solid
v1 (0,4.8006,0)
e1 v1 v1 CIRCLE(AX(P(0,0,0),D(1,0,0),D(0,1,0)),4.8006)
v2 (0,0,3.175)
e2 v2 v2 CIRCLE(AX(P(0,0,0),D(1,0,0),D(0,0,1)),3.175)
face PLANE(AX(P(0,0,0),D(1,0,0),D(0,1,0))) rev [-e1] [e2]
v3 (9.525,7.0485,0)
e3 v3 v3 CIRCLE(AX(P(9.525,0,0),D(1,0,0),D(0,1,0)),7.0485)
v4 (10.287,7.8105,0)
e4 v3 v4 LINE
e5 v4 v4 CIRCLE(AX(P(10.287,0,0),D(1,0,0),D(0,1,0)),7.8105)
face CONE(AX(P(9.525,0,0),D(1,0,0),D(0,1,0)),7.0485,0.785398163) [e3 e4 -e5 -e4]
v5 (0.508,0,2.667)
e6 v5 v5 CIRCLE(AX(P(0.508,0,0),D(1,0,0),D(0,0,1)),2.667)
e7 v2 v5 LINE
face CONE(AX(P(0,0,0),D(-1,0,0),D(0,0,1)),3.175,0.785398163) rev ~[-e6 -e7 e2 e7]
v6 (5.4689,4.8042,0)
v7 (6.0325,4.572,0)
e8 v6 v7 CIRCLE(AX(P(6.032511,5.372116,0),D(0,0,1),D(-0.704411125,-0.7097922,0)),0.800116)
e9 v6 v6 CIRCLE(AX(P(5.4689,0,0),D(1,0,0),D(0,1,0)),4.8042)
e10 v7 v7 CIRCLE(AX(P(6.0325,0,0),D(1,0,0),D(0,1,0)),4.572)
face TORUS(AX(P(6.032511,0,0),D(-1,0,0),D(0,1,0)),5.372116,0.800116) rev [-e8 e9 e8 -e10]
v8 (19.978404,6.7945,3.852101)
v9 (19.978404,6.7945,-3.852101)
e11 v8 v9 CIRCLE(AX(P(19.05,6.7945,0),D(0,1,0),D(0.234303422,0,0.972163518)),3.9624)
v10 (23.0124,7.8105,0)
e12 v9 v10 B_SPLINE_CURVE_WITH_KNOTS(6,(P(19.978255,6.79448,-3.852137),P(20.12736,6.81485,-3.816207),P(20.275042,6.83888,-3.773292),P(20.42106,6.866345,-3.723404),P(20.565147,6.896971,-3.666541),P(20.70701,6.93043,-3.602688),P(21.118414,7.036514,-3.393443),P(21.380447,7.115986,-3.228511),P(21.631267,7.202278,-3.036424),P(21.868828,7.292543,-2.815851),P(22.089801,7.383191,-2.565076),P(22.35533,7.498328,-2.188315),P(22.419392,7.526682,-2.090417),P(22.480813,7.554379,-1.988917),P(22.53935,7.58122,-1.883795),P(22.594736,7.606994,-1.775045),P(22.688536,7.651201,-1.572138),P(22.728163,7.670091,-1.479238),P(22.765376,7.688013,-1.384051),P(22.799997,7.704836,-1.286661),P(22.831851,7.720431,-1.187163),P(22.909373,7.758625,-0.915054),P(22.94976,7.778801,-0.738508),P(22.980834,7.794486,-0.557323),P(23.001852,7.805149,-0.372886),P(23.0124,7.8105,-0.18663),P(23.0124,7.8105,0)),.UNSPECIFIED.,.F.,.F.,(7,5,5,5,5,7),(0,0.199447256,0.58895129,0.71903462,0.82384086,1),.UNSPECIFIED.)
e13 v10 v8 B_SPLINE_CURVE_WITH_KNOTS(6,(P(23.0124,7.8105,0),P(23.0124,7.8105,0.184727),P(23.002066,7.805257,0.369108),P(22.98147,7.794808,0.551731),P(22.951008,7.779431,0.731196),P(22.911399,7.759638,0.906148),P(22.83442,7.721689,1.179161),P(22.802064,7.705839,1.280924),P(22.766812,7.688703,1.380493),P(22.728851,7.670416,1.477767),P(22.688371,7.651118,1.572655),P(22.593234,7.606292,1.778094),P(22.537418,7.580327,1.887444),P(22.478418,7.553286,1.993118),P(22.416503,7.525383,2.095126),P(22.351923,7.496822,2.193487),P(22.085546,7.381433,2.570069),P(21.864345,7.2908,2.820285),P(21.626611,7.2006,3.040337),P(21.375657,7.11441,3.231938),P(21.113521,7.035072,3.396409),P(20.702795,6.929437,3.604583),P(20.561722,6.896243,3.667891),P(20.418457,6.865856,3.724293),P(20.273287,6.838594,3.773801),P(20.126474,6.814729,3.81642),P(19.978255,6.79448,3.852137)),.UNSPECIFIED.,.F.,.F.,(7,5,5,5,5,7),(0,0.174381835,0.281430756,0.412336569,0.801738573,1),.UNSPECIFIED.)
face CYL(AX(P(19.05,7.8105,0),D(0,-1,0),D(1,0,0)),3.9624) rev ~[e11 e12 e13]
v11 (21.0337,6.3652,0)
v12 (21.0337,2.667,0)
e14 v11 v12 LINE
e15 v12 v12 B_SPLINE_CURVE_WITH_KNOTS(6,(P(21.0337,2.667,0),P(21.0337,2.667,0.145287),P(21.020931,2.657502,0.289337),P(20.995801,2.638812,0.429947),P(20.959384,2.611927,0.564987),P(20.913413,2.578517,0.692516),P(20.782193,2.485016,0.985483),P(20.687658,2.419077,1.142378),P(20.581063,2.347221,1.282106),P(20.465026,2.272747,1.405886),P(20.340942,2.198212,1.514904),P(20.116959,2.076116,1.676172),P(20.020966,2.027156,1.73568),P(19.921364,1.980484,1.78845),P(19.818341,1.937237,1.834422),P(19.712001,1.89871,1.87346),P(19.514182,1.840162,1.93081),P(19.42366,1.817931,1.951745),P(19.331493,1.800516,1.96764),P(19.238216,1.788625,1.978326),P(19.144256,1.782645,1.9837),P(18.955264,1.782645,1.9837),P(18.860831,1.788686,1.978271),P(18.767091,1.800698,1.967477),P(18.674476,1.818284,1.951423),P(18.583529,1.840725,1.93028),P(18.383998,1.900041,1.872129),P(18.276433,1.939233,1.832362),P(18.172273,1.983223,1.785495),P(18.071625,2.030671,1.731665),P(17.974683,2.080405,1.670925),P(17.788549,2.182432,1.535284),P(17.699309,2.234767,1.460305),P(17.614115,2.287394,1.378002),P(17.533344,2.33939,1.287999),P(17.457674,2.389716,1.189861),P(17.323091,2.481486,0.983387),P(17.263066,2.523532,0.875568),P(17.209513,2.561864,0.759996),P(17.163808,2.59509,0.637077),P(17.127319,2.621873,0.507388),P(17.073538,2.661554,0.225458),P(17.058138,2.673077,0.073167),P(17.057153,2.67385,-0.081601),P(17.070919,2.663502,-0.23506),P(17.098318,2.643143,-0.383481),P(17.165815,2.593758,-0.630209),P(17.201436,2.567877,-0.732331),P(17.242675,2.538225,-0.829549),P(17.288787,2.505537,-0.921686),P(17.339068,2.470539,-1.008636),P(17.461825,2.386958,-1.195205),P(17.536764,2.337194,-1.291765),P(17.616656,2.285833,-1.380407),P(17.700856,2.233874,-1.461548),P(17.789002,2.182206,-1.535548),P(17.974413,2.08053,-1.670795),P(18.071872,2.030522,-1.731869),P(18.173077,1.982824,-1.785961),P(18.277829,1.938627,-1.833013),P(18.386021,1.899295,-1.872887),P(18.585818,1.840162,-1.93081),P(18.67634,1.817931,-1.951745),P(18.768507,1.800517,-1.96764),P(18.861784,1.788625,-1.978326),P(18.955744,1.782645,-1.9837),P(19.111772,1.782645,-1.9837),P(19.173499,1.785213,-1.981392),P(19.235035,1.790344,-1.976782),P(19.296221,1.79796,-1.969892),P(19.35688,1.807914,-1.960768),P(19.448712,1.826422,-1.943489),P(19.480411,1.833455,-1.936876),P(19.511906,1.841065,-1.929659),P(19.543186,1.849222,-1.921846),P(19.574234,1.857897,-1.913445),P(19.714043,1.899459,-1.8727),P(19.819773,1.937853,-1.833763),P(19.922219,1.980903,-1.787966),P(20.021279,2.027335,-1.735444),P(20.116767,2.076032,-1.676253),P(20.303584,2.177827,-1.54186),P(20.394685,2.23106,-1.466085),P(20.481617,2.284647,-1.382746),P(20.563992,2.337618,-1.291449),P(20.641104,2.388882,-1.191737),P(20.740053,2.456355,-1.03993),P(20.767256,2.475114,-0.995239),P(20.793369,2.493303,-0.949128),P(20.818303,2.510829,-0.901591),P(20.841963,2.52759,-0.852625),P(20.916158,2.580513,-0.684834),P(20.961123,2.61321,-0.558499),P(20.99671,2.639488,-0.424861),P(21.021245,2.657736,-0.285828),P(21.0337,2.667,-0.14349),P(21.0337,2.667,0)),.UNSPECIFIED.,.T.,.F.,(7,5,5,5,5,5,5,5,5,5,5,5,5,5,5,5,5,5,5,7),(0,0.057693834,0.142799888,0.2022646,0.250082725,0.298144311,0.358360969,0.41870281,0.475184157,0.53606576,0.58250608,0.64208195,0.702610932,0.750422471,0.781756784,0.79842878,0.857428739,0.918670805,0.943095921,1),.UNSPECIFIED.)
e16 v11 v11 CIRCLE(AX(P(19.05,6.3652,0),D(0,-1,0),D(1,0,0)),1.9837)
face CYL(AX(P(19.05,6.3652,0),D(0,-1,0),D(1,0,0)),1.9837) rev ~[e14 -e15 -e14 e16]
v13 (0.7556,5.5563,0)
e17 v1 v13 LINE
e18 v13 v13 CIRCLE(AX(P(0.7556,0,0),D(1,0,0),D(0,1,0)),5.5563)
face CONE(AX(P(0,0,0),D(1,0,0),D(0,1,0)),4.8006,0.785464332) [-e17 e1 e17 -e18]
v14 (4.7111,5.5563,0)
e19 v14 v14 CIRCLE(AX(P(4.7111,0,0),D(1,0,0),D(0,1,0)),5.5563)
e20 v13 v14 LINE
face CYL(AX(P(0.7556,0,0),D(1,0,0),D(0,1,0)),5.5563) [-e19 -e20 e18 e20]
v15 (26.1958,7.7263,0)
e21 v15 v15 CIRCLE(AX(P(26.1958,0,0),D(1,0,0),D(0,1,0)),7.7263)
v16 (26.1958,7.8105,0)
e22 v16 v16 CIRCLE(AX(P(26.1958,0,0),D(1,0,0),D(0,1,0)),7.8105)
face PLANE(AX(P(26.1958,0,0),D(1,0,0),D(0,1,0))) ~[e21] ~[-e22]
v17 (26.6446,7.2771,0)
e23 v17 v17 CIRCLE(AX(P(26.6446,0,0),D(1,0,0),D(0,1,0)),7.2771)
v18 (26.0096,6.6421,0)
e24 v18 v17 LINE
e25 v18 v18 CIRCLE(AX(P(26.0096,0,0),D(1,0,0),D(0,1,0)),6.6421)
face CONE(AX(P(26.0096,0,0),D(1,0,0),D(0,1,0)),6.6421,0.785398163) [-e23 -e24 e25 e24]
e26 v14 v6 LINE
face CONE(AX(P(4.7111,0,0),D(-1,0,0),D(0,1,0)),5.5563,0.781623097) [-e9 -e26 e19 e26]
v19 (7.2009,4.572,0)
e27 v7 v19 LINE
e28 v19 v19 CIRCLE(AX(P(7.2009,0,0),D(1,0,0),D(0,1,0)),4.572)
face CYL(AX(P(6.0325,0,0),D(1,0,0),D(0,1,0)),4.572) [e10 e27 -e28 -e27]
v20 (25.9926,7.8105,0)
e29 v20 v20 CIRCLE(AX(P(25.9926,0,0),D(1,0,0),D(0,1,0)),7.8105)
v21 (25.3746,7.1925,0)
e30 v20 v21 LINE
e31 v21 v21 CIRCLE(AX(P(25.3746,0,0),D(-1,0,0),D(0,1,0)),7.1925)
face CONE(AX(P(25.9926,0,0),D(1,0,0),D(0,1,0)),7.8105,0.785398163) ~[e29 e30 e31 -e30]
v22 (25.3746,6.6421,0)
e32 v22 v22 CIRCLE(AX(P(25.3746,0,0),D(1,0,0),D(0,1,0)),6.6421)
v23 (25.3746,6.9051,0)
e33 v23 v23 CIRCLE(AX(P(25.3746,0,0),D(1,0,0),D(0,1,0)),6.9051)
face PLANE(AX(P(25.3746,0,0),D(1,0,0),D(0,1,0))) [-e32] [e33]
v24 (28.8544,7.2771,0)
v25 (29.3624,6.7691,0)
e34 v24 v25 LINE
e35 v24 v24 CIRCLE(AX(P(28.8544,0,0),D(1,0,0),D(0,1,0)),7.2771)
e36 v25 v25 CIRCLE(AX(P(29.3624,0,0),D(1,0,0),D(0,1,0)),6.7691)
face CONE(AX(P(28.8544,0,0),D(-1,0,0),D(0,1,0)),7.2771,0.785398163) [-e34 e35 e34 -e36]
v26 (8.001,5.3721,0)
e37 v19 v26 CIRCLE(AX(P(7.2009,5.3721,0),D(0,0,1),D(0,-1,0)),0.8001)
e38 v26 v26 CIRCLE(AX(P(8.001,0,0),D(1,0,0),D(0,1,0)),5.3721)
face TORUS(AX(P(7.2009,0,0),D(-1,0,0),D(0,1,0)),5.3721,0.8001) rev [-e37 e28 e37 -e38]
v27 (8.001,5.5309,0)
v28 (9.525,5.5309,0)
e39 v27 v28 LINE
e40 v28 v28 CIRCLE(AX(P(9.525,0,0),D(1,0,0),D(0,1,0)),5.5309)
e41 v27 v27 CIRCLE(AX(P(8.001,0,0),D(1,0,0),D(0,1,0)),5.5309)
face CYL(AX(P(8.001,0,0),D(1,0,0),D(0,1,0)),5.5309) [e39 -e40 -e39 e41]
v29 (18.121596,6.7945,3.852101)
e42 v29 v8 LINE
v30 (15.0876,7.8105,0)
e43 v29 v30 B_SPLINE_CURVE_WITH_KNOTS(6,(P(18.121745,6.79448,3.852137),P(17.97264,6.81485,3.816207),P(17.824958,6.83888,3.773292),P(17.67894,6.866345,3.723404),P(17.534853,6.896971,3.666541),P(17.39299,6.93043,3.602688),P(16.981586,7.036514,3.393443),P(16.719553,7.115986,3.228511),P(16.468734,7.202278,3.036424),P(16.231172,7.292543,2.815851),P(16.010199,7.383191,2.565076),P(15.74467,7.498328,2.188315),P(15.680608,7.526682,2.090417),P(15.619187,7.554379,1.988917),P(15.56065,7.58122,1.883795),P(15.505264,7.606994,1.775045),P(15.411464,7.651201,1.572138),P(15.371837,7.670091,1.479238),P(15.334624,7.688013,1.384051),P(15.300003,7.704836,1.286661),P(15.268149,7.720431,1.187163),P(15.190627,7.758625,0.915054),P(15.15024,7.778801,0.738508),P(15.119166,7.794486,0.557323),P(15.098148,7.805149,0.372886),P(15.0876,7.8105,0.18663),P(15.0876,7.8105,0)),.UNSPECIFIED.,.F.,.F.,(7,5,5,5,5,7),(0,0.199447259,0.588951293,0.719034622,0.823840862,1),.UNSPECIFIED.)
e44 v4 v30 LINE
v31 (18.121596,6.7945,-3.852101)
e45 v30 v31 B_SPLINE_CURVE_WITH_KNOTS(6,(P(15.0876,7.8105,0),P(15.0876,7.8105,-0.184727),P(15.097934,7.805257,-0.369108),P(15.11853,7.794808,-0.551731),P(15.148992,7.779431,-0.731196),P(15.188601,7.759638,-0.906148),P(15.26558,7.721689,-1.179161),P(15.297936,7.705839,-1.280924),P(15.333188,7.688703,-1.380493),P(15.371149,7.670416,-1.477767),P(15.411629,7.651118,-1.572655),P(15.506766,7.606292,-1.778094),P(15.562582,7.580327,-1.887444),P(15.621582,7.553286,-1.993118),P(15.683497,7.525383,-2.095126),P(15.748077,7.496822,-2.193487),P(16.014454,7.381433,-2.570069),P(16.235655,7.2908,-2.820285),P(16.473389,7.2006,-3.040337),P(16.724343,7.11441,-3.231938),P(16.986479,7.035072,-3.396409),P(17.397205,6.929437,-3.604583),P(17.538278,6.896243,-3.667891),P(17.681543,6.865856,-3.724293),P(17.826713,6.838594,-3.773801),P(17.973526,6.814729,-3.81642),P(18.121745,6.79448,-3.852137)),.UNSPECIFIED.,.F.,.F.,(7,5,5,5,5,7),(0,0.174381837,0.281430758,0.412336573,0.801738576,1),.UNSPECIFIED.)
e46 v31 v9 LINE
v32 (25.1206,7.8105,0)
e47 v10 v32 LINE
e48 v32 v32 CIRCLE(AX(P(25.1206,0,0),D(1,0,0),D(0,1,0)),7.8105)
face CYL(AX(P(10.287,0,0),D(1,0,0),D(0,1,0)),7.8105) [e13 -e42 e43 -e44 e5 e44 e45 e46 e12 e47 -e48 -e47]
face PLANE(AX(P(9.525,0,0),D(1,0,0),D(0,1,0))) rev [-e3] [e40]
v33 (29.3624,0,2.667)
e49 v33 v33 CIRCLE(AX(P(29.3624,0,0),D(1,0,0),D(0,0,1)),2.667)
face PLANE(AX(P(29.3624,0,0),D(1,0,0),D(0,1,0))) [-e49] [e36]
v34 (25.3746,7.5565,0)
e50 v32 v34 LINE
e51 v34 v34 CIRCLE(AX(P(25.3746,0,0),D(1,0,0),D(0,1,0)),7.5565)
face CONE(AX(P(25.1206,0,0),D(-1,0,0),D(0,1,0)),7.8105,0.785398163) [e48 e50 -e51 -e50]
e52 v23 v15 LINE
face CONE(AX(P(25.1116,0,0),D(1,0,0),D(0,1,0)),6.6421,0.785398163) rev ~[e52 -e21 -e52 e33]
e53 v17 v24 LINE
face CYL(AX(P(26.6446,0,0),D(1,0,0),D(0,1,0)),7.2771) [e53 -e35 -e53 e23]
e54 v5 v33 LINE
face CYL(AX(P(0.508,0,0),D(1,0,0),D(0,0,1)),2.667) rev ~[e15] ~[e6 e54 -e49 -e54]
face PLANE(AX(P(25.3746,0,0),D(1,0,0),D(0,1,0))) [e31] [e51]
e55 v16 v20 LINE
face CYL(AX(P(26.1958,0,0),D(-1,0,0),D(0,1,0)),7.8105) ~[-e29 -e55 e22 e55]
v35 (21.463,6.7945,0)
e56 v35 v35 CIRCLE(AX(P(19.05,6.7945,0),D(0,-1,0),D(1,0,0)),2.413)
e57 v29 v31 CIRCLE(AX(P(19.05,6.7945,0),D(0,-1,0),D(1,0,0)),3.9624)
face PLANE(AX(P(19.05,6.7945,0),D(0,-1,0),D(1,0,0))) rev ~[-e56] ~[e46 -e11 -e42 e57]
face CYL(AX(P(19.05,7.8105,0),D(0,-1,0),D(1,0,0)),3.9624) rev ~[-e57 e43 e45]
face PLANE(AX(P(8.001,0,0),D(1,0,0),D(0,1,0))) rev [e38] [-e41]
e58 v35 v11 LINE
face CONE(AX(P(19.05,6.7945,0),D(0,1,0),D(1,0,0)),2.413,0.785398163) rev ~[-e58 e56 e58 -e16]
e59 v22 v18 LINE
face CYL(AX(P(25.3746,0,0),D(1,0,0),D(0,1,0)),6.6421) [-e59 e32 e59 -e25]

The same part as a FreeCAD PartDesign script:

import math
import FreeCAD as App
import Part
import Sketcher
from FreeCAD import Vector
Q = App.Units.Quantity


def add_polygon(sketch, points):
    """Adds a closed chain of lines whose ends are joined by coincident constraints."""
    first, n = sketch.GeometryCount, len(points)
    for a, b in zip(points, points[1:] + points[:1]):
        sketch.addGeometry(Part.LineSegment(App.Vector(*a, 0), App.Vector(*b, 0)), False)
    for i in range(n):
        sketch.addConstraint(Sketcher.Constraint("Coincident", first + i, 2, first + (i + 1) % n, 1))

doc = App.newDocument("Part")
body = doc.addObject("PartDesign::Body", "Body")

# Sketch on XY plane
sketch1 = body.newObject("Sketcher::SketchObject", "Sketch")
sketch1.AttachmentSupport = (doc.getObject("XY_Plane"), [""])
sketch1.MapMode = "FlatFace"
sketch1.addGeometry(Part.LineSegment(Vector(0, 0, 0), Vector(9.53, 0, 0)), False)
sketch1.addGeometry(Part.LineSegment(Vector(9.53, 0, 0), Vector(9.53, 5.53, 0)), False)
sketch1.addGeometry(Part.LineSegment(Vector(9.53, 5.53, 0), Vector(8, 5.53, 0)), False)
sketch1.addGeometry(Part.LineSegment(Vector(8, 5.53, 0), Vector(8, 5.37, 0)), False)
sketch1.addGeometry(Part.ArcOfCircle(Part.Circle(Vector(7.2, 5.37, 0), Vector(0, 0, 1), 0.8), math.radians(-90), math.radians(0)), False)
sketch1.addGeometry(Part.LineSegment(Vector(7.2, 4.57, 0), Vector(6.03, 4.57, 0)), False)
sketch1.addGeometry(Part.ArcOfCircle(Part.Circle(Vector(6.03, 5.37, 0), Vector(0, 0, 1), 0.8), math.radians(-135), math.radians(-90)), False)
sketch1.addGeometry(Part.LineSegment(Vector(5.47, 4.8, 0), Vector(4.71, 5.56, 0)), False)
sketch1.addGeometry(Part.LineSegment(Vector(4.71, 5.56, 0), Vector(0.76, 5.56, 0)), False)
sketch1.addGeometry(Part.LineSegment(Vector(0.76, 5.56, 0), Vector(0, 4.8, 0)), False)
sketch1.addGeometry(Part.LineSegment(Vector(0, 4.8, 0), Vector(0, 0, 0)), False)
sketch1.addConstraint(Sketcher.Constraint("Coincident", 0, 2, 1, 1))
sketch1.addConstraint(Sketcher.Constraint("Coincident", 1, 2, 2, 1))
sketch1.addConstraint(Sketcher.Constraint("Coincident", 2, 2, 3, 1))
sketch1.addConstraint(Sketcher.Constraint("Tangent", 3, 2, 4, 2))
sketch1.addConstraint(Sketcher.Constraint("Tangent", 4, 1, 5, 1))
sketch1.addConstraint(Sketcher.Constraint("Tangent", 5, 2, 6, 2))
sketch1.addConstraint(Sketcher.Constraint("Tangent", 6, 1, 7, 1))
sketch1.addConstraint(Sketcher.Constraint("Coincident", 7, 2, 8, 1))
sketch1.addConstraint(Sketcher.Constraint("Coincident", 8, 2, 9, 1))
sketch1.addConstraint(Sketcher.Constraint("Coincident", 9, 2, 10, 1))
sketch1.addConstraint(Sketcher.Constraint("Coincident", 10, 2, 0, 1))
sketch1.addConstraint(Sketcher.Constraint("Horizontal", 0))
sketch1.addConstraint(Sketcher.Constraint("Vertical", 1))
sketch1.addConstraint(Sketcher.Constraint("Horizontal", 2))
sketch1.addConstraint(Sketcher.Constraint("Vertical", 3))
sketch1.addConstraint(Sketcher.Constraint("Horizontal", 5))
sketch1.addConstraint(Sketcher.Constraint("Horizontal", 8))
sketch1.addConstraint(Sketcher.Constraint("Vertical", 10))
sketch1.addConstraint(Sketcher.Constraint("Coincident", 10, 2, -1, 1))
sketch1.addConstraint(Sketcher.Constraint("Equal", 4, 6))
sketch1.addConstraint(Sketcher.Constraint("DistanceX", 2, 2, 2, 1, Q("0.06 in")))
sketch1.addConstraint(Sketcher.Constraint("Radius", 4, Q("0.0315 in")))
sketch1.addConstraint(Sketcher.Constraint("DistanceX", 0, 1, 0, 2, Q("0.375 in")))
sketch1.addConstraint(Sketcher.Constraint("DistanceX", 5, 2, 5, 1, Q("0.046 in")))
sketch1.addConstraint(Sketcher.Constraint("DistanceY", 10, 2, 10, 1, Q("0.189 in")))
sketch1.addConstraint(Sketcher.Constraint("DistanceY", -1, 1, 4, 1, Q("0.18 in")))
sketch1.addConstraint(Sketcher.Constraint("DistanceY", -1, 1, 7, 2, Q("0.218752 in")))
sketch1.addConstraint(Sketcher.Constraint("DistanceX", 8, 2, 8, 1, 3.9555))
sketch1.addConstraint(Sketcher.Constraint("DistanceY", 1, 1, 1, 2, 5.531))
sketch1.addConstraint(Sketcher.Constraint("DistanceX", -1, 1, 6, 1, Q("0.2153 in")))
revolution = body.newObject("PartDesign::Revolution", "Revolution")
revolution.Profile = sketch1
revolution.ReferenceAxis = (sketch1, ["H_Axis"])
revolution.Angle = 360

# Sketch on XY plane
sketch2 = body.newObject("Sketcher::SketchObject", "Sketch001")
sketch2.AttachmentSupport = (doc.getObject("XY_Plane"), [""])
sketch2.MapMode = "FlatFace"
add_polygon(sketch2, [(9.53, 0), (29.36, 0), (29.36, 6.77), (28.85, 7.28), (26.64, 7.28), (26.01, 6.64), (25.37, 6.64), (25.37, 7.56), (25.12, 7.81), (10.29, 7.81), (9.53, 7.05)])  # lines 0-10
sketch2.addConstraint(Sketcher.Constraint("Horizontal", 0))
sketch2.addConstraint(Sketcher.Constraint("Vertical", 1))
sketch2.addConstraint(Sketcher.Constraint("Horizontal", 3))
sketch2.addConstraint(Sketcher.Constraint("Horizontal", 5))
sketch2.addConstraint(Sketcher.Constraint("Vertical", 6))
sketch2.addConstraint(Sketcher.Constraint("Horizontal", 8))
sketch2.addConstraint(Sketcher.Constraint("Vertical", 10))
sketch2.addConstraint(Sketcher.Constraint("PointOnObject", 0, 2, -1))
sketch2.addConstraint(Sketcher.Constraint("Perpendicular", 2, 4))
sketch2.addConstraint(Sketcher.Constraint("Perpendicular", 4, 7))
sketch2.addConstraint(Sketcher.Constraint("Perpendicular", 7, 9))
sketch2.addConstraint(Sketcher.Constraint("Angle", 2, Q("135 deg")))
sketch2.addConstraint(Sketcher.Constraint("DistanceX", 0, 1, 0, 2, Q("0.781 in")))
sketch2.addConstraint(Sketcher.Constraint("DistanceX", 3, 2, 3, 1, Q("0.087 in")))
sketch2.addConstraint(Sketcher.Constraint("DistanceX", 5, 2, 5, 1, Q("0.025 in")))
sketch2.addConstraint(Sketcher.Constraint("DistanceX", 8, 2, 8, 1, Q("0.584 in")))
sketch2.addConstraint(Sketcher.Constraint("DistanceY", 6, 1, 6, 2, Q("0.036 in")))
sketch2.addConstraint(Sketcher.Constraint("DistanceX", 2, 2, 1, 2, Q("0.02 in")))
sketch2.addConstraint(Sketcher.Constraint("DistanceX", 5, 2, 3, 2, Q("0.05 in")))
sketch2.addConstraint(Sketcher.Constraint("DistanceX", 7, 2, 6, 2, Q("0.01 in")))
sketch2.addConstraint(Sketcher.Constraint("DistanceY", 1, 1, 1, 2, Q("0.2665 in")))
sketch2.addConstraint(Sketcher.Constraint("DistanceX", -1, 1, 0, 2, Q("1.156 in")))
revolution2 = body.newObject("PartDesign::Revolution", "Revolution001")
revolution2.Profile = sketch2
revolution2.ReferenceAxis = (sketch2, ["H_Axis"])
revolution2.Angle = 360

# Sketch on YZ plane
sketch3 = body.newObject("Sketcher::SketchObject", "Sketch002")
sketch3.AttachmentSupport = (doc.getObject("YZ_Plane"), [""])
sketch3.MapMode = "FlatFace"
sketch3.addGeometry(Part.Circle(Vector(0, 0, 0), Vector(0, 0, 1), 2.7), False)
sketch3.addConstraint(Sketcher.Constraint("Coincident", 0, 3, -1, 1))
sketch3.addConstraint(Sketcher.Constraint("Diameter", 0, Q("0.21 in")))
doc.recompute()
hole = body.newObject("PartDesign::Hole", "Hole")
hole.Profile = sketch3
hole.ThreadType = "None"
hole.Diameter = Q("0.21 in")
hole.DepthType = "Dimension"
hole.Depth = Q("1.156 in")
hole.DrillPoint = "Flat"
hole.HoleCutType = "Countersink"
hole.HoleCutDiameter = Q("0.25 in")
hole.HoleCutCountersinkAngle = 90
hole.Reversed = True

# Sketch on XY plane
sketch4 = body.newObject("Sketcher::SketchObject", "Sketch003")
sketch4.AttachmentSupport = (doc.getObject("XY_Plane"), [""])
sketch4.MapMode = "FlatFace"
add_polygon(sketch4, [(19.1, 7.8), (19.1, -1), (21, -1), (21, 6.4), (21.5, 6.8), (23, 6.8), (23, 7.8)])  # lines 0-6
sketch4.addGeometry(Part.LineSegment(Vector(19.1, 7.8, 0), Vector(19.1, -1, 0)), True)  # axis
sketch4.addConstraint(Sketcher.Constraint("Vertical", 0))
sketch4.addConstraint(Sketcher.Constraint("Horizontal", 1))
sketch4.addConstraint(Sketcher.Constraint("Vertical", 2))
sketch4.addConstraint(Sketcher.Constraint("Horizontal", 4))
sketch4.addConstraint(Sketcher.Constraint("Vertical", 5))
sketch4.addConstraint(Sketcher.Constraint("Horizontal", 6))
sketch4.addConstraint(Sketcher.Constraint("Vertical", 7))
sketch4.addConstraint(Sketcher.Constraint("Coincident", 7, 1, 6, 2))
sketch4.addConstraint(Sketcher.Constraint("Horizontal", 1, 2, 7, 2))
sketch4.addConstraint(Sketcher.Constraint("Angle", 3, Q("45 deg")))
sketch4.addConstraint(Sketcher.Constraint("DistanceY", 5, 1, 5, 2, Q("0.04 in")))
sketch4.addConstraint(Sketcher.Constraint("DistanceX", 4, 1, 4, 2, Q("0.061 in")))
sketch4.addConstraint(Sketcher.Constraint("DistanceX", 6, 2, 6, 1, Q("0.156 in")))
sketch4.addConstraint(Sketcher.Constraint("DistanceX", -1, 1, 0, 2, Q("0.75 in")))
sketch4.addConstraint(Sketcher.Constraint("DistanceY", 0, 2, -1, 1, Q("0.04 in")))
sketch4.addConstraint(Sketcher.Constraint("DistanceX", 1, 1, 1, 2, Q("0.0781 in")))
sketch4.addConstraint(Sketcher.Constraint("DistanceY", 0, 2, 0, 1, Q("0.3475 in")))
groove = body.newObject("PartDesign::Groove", "Groove")
groove.Profile = sketch4
groove.ReferenceAxis = (sketch4, ["Axis0"])
groove.Angle = 360

# Sketch on XY plane
sketch5 = body.newObject("Sketcher::SketchObject", "Sketch004")
sketch5.AttachmentSupport = (doc.getObject("XY_Plane"), [""])
sketch5.MapMode = "FlatFace"
add_polygon(sketch5, [(25.99, 7.81), (24.82, 6.64), (25.11, 6.64), (26.2, 7.73), (26.2, 7.81)])  # lines 0-4
sketch5.addConstraint(Sketcher.Constraint("Horizontal", 1))
sketch5.addConstraint(Sketcher.Constraint("Vertical", 3))
sketch5.addConstraint(Sketcher.Constraint("Horizontal", 4))
sketch5.addConstraint(Sketcher.Constraint("Parallel", 0, 2))
sketch5.addConstraint(Sketcher.Constraint("Angle", 0, Q("-135 deg")))
sketch5.addConstraint(Sketcher.Constraint("DistanceX", 4, 2, 4, 1, Q("0.008 in")))
sketch5.addConstraint(Sketcher.Constraint("DistanceX", 0, 2, 2, 2, Q("0.054 in")))
sketch5.addConstraint(Sketcher.Constraint("DistanceX", 1, 1, 1, 2, 0.2874))
sketch5.addConstraint(Sketcher.Constraint("DistanceY", -1, 1, 0, 2, Q("0.2615 in")))
sketch5.addConstraint(Sketcher.Constraint("DistanceX", -1, 1, 0, 2, 24.8242))
revolution3 = body.newObject("PartDesign::Revolution", "Revolution002")
revolution3.Profile = sketch5
revolution3.ReferenceAxis = (sketch5, ["H_Axis"])
revolution3.Angle = 360

doc.recompute()
